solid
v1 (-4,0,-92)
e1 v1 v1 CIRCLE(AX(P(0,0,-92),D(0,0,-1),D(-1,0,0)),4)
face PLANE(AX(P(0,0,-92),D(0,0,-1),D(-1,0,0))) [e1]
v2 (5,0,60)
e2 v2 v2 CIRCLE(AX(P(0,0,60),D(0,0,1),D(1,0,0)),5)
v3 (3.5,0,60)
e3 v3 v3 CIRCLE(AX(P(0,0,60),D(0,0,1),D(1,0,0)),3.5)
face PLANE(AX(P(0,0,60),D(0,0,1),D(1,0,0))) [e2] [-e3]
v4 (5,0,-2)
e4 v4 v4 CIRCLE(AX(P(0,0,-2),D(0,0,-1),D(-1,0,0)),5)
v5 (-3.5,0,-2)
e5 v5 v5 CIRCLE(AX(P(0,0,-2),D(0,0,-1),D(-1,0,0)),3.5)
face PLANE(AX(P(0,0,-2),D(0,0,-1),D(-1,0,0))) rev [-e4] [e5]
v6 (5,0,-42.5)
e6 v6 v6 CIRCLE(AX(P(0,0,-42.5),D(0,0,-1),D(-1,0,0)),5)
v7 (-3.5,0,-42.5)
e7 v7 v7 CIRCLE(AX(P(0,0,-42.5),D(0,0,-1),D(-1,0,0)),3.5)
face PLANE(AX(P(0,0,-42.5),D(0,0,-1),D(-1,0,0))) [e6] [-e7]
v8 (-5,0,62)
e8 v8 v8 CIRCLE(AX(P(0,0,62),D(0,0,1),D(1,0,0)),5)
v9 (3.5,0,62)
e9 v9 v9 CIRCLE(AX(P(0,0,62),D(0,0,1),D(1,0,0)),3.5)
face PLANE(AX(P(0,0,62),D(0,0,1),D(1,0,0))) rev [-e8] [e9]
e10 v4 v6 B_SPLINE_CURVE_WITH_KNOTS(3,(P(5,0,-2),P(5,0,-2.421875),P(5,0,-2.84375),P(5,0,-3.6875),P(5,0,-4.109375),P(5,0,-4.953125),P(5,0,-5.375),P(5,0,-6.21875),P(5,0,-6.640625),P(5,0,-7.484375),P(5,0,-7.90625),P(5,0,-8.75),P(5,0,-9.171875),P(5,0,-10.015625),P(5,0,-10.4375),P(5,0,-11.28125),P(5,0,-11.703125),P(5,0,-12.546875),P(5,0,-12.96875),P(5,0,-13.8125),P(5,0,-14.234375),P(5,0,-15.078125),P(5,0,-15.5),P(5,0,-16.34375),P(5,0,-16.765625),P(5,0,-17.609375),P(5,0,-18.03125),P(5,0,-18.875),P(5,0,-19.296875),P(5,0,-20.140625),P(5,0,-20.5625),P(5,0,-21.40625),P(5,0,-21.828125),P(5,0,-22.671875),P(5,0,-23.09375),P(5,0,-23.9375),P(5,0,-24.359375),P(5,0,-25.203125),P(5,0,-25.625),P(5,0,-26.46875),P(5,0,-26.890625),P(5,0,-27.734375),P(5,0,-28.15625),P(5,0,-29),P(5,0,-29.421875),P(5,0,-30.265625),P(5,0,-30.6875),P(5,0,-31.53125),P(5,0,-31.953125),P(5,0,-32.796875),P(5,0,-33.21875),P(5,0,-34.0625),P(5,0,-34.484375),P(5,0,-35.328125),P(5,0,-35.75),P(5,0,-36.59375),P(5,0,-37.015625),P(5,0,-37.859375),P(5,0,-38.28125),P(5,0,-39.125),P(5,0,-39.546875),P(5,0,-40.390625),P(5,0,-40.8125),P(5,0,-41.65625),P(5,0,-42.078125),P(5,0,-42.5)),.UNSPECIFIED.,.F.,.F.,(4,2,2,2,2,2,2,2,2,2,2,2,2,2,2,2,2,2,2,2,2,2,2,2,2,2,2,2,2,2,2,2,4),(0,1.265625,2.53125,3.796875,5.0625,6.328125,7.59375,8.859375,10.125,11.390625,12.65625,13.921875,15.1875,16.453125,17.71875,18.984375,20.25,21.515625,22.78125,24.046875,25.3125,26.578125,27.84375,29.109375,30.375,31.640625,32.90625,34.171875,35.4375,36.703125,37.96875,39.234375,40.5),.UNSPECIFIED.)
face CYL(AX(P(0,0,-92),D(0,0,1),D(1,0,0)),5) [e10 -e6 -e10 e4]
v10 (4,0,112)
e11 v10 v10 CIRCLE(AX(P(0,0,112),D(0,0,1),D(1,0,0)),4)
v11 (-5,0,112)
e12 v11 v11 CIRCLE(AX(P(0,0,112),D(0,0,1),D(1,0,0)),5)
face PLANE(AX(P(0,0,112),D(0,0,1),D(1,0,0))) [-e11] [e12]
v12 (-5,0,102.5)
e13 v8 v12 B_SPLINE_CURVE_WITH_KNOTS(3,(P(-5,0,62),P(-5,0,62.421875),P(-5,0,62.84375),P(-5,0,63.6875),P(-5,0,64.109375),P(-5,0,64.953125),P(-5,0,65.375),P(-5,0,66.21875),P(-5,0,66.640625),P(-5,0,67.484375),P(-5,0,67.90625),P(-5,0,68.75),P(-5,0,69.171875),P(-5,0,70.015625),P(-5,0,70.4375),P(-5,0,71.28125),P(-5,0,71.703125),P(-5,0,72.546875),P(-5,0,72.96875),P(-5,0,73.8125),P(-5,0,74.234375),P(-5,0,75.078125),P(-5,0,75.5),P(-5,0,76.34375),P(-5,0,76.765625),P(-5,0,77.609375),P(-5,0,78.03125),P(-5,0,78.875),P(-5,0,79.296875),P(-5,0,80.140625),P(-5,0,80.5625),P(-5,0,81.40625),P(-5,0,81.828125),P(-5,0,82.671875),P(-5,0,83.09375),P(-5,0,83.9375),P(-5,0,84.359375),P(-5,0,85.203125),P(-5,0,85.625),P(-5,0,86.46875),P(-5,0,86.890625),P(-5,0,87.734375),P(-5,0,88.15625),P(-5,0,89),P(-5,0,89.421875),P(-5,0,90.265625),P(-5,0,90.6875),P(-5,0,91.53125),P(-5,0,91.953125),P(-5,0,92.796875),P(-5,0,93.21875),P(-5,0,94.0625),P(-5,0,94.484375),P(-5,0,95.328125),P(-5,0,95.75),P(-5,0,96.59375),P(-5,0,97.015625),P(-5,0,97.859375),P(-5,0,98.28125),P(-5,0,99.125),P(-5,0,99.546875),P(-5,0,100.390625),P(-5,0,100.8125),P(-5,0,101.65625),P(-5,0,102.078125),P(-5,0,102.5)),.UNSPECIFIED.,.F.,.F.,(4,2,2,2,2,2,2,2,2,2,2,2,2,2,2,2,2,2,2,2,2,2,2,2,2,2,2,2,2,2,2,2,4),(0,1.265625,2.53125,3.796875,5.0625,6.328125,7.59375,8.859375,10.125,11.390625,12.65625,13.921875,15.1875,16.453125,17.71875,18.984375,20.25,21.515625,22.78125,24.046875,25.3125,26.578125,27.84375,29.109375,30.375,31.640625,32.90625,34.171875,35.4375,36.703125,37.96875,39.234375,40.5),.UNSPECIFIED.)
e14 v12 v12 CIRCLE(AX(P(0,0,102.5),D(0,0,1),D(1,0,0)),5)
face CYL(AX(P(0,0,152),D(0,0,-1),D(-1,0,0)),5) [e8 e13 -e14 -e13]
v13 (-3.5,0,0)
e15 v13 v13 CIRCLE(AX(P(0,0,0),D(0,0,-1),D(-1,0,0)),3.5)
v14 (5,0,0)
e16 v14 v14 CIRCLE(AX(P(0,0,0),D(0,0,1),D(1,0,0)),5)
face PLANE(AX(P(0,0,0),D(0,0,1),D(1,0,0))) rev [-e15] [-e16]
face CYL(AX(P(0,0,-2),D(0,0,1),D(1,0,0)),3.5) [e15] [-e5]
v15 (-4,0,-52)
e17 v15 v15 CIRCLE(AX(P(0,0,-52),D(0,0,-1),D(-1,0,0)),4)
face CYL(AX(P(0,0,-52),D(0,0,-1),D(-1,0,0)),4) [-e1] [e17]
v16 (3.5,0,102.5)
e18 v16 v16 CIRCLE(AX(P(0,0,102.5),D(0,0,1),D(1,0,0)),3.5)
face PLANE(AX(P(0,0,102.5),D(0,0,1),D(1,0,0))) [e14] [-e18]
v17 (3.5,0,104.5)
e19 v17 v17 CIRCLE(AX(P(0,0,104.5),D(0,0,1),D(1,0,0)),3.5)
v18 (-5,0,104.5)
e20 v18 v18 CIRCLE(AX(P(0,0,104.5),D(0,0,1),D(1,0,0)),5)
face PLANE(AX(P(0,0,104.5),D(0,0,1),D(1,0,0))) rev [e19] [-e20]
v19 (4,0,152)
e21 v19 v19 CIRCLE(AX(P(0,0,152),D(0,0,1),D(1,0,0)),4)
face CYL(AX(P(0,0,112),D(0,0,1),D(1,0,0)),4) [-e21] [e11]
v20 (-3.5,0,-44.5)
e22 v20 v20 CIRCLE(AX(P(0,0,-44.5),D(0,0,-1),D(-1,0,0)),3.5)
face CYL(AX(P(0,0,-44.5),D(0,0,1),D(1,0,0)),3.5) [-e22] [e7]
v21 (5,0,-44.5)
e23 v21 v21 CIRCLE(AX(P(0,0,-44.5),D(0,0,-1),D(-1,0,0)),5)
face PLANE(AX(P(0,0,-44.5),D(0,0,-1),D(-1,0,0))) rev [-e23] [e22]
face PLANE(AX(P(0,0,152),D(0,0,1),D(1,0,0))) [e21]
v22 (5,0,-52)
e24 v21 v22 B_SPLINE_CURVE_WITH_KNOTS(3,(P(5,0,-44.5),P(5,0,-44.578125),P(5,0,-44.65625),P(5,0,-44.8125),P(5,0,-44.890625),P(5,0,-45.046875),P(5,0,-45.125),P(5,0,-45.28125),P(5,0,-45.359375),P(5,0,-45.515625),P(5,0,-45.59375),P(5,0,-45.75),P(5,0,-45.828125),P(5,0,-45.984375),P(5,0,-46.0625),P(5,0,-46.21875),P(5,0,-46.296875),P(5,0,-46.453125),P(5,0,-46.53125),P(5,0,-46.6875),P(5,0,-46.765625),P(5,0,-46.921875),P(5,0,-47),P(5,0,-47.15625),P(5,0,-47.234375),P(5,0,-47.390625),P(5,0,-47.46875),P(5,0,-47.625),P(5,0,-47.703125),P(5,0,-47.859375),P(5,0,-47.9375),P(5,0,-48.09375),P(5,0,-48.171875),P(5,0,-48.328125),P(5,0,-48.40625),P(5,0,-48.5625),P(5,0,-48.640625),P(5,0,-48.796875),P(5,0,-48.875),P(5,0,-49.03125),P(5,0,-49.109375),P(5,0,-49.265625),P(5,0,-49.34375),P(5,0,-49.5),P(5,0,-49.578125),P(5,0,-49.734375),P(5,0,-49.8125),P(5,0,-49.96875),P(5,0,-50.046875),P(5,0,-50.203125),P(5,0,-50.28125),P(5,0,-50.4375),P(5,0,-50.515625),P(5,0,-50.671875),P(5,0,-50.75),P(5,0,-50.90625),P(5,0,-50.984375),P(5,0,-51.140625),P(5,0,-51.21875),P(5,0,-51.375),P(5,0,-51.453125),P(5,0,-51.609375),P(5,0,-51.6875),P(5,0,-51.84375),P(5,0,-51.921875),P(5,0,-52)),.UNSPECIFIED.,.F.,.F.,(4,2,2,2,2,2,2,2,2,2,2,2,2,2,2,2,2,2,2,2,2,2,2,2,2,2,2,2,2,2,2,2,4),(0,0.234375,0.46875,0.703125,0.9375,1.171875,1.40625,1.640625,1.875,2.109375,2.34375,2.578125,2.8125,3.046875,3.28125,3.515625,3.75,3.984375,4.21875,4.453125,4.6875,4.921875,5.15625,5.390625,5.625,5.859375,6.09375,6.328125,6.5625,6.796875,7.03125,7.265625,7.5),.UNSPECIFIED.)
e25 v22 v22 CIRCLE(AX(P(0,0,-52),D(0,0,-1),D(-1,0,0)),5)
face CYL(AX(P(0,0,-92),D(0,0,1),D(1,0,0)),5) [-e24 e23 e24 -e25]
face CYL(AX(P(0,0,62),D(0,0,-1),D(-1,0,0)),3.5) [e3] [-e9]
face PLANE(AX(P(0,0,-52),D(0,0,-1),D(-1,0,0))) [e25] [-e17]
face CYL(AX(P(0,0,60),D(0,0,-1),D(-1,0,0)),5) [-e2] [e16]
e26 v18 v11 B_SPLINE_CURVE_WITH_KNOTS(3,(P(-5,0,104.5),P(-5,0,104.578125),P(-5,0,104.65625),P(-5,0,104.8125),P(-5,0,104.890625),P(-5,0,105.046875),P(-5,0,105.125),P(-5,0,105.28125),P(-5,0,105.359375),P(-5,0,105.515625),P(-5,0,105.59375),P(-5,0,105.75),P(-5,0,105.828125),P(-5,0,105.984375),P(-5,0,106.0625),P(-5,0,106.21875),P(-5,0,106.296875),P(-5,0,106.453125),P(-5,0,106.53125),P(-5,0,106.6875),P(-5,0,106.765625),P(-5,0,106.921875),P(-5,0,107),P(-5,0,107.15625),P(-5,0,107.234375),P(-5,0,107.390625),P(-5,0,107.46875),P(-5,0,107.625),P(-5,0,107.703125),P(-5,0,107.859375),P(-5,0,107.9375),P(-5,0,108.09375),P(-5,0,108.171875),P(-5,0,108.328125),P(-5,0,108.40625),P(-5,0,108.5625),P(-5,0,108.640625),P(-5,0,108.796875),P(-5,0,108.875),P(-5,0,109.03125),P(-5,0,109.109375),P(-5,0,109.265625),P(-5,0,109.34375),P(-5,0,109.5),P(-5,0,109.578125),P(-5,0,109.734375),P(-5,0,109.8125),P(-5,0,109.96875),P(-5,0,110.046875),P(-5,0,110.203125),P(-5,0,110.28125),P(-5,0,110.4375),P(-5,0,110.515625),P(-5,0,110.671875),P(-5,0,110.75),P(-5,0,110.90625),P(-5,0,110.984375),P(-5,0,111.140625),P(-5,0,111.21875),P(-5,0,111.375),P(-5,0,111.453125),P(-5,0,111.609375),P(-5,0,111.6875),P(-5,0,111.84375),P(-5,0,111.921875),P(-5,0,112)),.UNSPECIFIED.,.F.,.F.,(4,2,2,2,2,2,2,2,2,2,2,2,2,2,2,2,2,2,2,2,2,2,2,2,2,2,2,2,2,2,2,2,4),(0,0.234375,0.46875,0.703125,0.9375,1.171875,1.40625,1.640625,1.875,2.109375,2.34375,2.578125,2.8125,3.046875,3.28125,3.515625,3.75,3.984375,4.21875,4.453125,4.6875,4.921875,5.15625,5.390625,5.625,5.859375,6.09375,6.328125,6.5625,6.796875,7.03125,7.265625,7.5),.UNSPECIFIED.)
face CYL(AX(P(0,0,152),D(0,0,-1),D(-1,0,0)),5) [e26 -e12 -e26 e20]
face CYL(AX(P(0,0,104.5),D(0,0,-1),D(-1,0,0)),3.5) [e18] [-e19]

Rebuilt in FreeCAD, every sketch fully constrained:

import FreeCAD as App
import Part
import Sketcher

V = App.Vector
Q = App.Units.Quantity

doc = App.newDocument("Part")
body = doc.addObject("PartDesign::Body", "Body")

# Sketch on XY plane
sketch1 = body.newObject("Sketcher::SketchObject", "Sketch")
sketch1.AttachmentSupport = (doc.getObject("XY_Plane"), [""])
sketch1.MapMode = "FlatFace"
sketch1.addGeometry(Part.Circle(V(0, 0, 0), V(0, 0, 1), 5), False)
sketch1.addConstraint(Sketcher.Constraint("Coincident", 0, 3, -1, 1))
sketch1.addConstraint(Sketcher.Constraint("Diameter", 0, Q("10 mm")))
pad1 = body.newObject("PartDesign::Pad", "Pad")
pad1.Profile = sketch1
pad1.Length = 60

# Sketch on XY plane
sketch2 = body.newObject("Sketcher::SketchObject", "Sketch001")
sketch2.AttachmentSupport = (doc.getObject("XY_Plane"), [""])
sketch2.MapMode = "FlatFace"
sketch2.AttachmentOffset = App.Placement(V(0, 0, 60), App.Rotation())
sketch2.addGeometry(Part.Circle(V(0, 0, 0), V(0, 0, 1), 3.5), False)
sketch2.addConstraint(Sketcher.Constraint("Coincident", 0, 3, -1, 1))
sketch2.addConstraint(Sketcher.Constraint("Diameter", 0, Q("7 mm")))
pad2 = body.newObject("PartDesign::Pad", "Pad001")
pad2.Profile = sketch2
pad2.Length = 2

# Sketch on XY plane
sketch3 = body.newObject("Sketcher::SketchObject", "Sketch002")
sketch3.AttachmentSupport = (doc.getObject("XY_Plane"), [""])
sketch3.MapMode = "FlatFace"
sketch3.AttachmentOffset = App.Placement(V(0, 0, -2), App.Rotation())
sketch3.addGeometry(Part.Circle(V(0, 0, 0), V(0, 0, 1), 3.5), False)
sketch3.addConstraint(Sketcher.Constraint("Coincident", 0, 3, -1, 1))
sketch3.addConstraint(Sketcher.Constraint("Diameter", 0, Q("7 mm")))
pad3 = body.newObject("PartDesign::Pad", "Pad002")
pad3.Profile = sketch3
pad3.Length = 2

# Sketch on XY plane
sketch4 = body.newObject("Sketcher::SketchObject", "Sketch003")
sketch4.AttachmentSupport = (doc.getObject("XY_Plane"), [""])
sketch4.MapMode = "FlatFace"
sketch4.AttachmentOffset = App.Placement(V(0, 0, -92), App.Rotation())
sketch4.addGeometry(Part.Circle(V(0, 0, 0), V(0, 0, 1), 5), False)
sketch4.addConstraint(Sketcher.Constraint("Coincident", 0, 3, -1, 1))
sketch4.addConstraint(Sketcher.Constraint("Diameter", 0, Q("10 mm")))
pad4 = body.newObject("PartDesign::Pad", "Pad003")
pad4.Profile = sketch4
pad4.Length = 90

# Sketch on XY plane
sketch5 = body.newObject("Sketcher::SketchObject", "Sketch004")
sketch5.AttachmentSupport = (doc.getObject("XY_Plane"), [""])
sketch5.MapMode = "FlatFace"
sketch5.AttachmentOffset = App.Placement(V(0, 0, 62), App.Rotation())
sketch5.addGeometry(Part.Circle(V(0, 0, 0), V(0, 0, 1), 5), False)
sketch5.addConstraint(Sketcher.Constraint("Coincident", 0, 3, -1, 1))
sketch5.addConstraint(Sketcher.Constraint("Diameter", 0, Q("10 mm")))
pad5 = body.newObject("PartDesign::Pad", "Pad004")
pad5.Profile = sketch5
pad5.Length = 90

# Sketch on XY plane
sketch6 = body.newObject("Sketcher::SketchObject", "Sketch005")
sketch6.AttachmentSupport = (doc.getObject("XY_Plane"), [""])
sketch6.MapMode = "FlatFace"
sketch6.AttachmentOffset = App.Placement(V(0, 0, 112), App.Rotation())
sketch6.addGeometry(Part.Circle(V(0, 0, 0), V(0, 0, 1), 5), False)
sketch6.addGeometry(Part.Circle(V(0, 0, 0), V(0, 0, 1), 4), False)
sketch6.addConstraint(Sketcher.Constraint("Coincident", 0, 3, -1, 1))
sketch6.addConstraint(Sketcher.Constraint("Coincident", 1, 3, -1, 1))
sketch6.addConstraint(Sketcher.Constraint("Diameter", 0, Q("10 mm")))
sketch6.addConstraint(Sketcher.Constraint("Diameter", 1, Q("8 mm")))
pocket1 = body.newObject("PartDesign::Pocket", "Pocket")
pocket1.Profile = sketch6
pocket1.Length = 40
pocket1.Reversed = True

# Sketch on XY plane
sketch7 = body.newObject("Sketcher::SketchObject", "Sketch006")
sketch7.AttachmentSupport = (doc.getObject("XY_Plane"), [""])
sketch7.MapMode = "FlatFace"
sketch7.AttachmentOffset = App.Placement(V(0, 0, -92), App.Rotation())
sketch7.addGeometry(Part.Circle(V(0, 0, 0), V(0, 0, 1), 5), False)
sketch7.addGeometry(Part.Circle(V(0, 0, 0), V(0, 0, 1), 4), False)
sketch7.addConstraint(Sketcher.Constraint("Coincident", 0, 3, -1, 1))
sketch7.addConstraint(Sketcher.Constraint("Coincident", 1, 3, -1, 1))
sketch7.addConstraint(Sketcher.Constraint("Diameter", 0, Q("10 mm")))
sketch7.addConstraint(Sketcher.Constraint("Diameter", 1, Q("8 mm")))
pocket2 = body.newObject("PartDesign::Pocket", "Pocket001")
pocket2.Profile = sketch7
pocket2.Length = 40
pocket2.Reversed = True

# Sketch on XY plane
sketch8 = body.newObject("Sketcher::SketchObject", "Sketch007")
sketch8.AttachmentSupport = (doc.getObject("XY_Plane"), [""])
sketch8.MapMode = "FlatFace"
sketch8.AttachmentOffset = App.Placement(V(0, 0, -44.5), App.Rotation())
sketch8.addGeometry(Part.Circle(V(0, 0, 0), V(0, 0, 1), 5), False)
sketch8.addGeometry(Part.Circle(V(0, 0, 0), V(0, 0, 1), 3.5), False)
sketch8.addConstraint(Sketcher.Constraint("Coincident", 0, 3, -1, 1))
sketch8.addConstraint(Sketcher.Constraint("Coincident", 1, 3, -1, 1))
sketch8.addConstraint(Sketcher.Constraint("Diameter", 0, Q("10 mm")))
sketch8.addConstraint(Sketcher.Constraint("Diameter", 1, Q("7 mm")))
pocket3 = body.newObject("PartDesign::Pocket", "Pocket002")
pocket3.Profile = sketch8
pocket3.Length = 2
pocket3.Reversed = True

# Sketch on XY plane
sketch9 = body.newObject("Sketcher::SketchObject", "Sketch008")
sketch9.AttachmentSupport = (doc.getObject("XY_Plane"), [""])
sketch9.MapMode = "FlatFace"
sketch9.AttachmentOffset = App.Placement(V(0, 0, 102.5), App.Rotation())
sketch9.addGeometry(Part.Circle(V(0, 0, 0), V(0, 0, 1), 5), False)
sketch9.addGeometry(Part.Circle(V(0, 0, 0), V(0, 0, 1), 3.5), False)
sketch9.addConstraint(Sketcher.Constraint("Coincident", 0, 3, -1, 1))
sketch9.addConstraint(Sketcher.Constraint("Coincident", 1, 3, -1, 1))
sketch9.addConstraint(Sketcher.Constraint("Diameter", 0, Q("10 mm")))
sketch9.addConstraint(Sketcher.Constraint("Diameter", 1, Q("7 mm")))
pocket4 = body.newObject("PartDesign::Pocket", "Pocket003")
pocket4.Profile = sketch9
pocket4.Length = 2
pocket4.Reversed = True

doc.recompute()
